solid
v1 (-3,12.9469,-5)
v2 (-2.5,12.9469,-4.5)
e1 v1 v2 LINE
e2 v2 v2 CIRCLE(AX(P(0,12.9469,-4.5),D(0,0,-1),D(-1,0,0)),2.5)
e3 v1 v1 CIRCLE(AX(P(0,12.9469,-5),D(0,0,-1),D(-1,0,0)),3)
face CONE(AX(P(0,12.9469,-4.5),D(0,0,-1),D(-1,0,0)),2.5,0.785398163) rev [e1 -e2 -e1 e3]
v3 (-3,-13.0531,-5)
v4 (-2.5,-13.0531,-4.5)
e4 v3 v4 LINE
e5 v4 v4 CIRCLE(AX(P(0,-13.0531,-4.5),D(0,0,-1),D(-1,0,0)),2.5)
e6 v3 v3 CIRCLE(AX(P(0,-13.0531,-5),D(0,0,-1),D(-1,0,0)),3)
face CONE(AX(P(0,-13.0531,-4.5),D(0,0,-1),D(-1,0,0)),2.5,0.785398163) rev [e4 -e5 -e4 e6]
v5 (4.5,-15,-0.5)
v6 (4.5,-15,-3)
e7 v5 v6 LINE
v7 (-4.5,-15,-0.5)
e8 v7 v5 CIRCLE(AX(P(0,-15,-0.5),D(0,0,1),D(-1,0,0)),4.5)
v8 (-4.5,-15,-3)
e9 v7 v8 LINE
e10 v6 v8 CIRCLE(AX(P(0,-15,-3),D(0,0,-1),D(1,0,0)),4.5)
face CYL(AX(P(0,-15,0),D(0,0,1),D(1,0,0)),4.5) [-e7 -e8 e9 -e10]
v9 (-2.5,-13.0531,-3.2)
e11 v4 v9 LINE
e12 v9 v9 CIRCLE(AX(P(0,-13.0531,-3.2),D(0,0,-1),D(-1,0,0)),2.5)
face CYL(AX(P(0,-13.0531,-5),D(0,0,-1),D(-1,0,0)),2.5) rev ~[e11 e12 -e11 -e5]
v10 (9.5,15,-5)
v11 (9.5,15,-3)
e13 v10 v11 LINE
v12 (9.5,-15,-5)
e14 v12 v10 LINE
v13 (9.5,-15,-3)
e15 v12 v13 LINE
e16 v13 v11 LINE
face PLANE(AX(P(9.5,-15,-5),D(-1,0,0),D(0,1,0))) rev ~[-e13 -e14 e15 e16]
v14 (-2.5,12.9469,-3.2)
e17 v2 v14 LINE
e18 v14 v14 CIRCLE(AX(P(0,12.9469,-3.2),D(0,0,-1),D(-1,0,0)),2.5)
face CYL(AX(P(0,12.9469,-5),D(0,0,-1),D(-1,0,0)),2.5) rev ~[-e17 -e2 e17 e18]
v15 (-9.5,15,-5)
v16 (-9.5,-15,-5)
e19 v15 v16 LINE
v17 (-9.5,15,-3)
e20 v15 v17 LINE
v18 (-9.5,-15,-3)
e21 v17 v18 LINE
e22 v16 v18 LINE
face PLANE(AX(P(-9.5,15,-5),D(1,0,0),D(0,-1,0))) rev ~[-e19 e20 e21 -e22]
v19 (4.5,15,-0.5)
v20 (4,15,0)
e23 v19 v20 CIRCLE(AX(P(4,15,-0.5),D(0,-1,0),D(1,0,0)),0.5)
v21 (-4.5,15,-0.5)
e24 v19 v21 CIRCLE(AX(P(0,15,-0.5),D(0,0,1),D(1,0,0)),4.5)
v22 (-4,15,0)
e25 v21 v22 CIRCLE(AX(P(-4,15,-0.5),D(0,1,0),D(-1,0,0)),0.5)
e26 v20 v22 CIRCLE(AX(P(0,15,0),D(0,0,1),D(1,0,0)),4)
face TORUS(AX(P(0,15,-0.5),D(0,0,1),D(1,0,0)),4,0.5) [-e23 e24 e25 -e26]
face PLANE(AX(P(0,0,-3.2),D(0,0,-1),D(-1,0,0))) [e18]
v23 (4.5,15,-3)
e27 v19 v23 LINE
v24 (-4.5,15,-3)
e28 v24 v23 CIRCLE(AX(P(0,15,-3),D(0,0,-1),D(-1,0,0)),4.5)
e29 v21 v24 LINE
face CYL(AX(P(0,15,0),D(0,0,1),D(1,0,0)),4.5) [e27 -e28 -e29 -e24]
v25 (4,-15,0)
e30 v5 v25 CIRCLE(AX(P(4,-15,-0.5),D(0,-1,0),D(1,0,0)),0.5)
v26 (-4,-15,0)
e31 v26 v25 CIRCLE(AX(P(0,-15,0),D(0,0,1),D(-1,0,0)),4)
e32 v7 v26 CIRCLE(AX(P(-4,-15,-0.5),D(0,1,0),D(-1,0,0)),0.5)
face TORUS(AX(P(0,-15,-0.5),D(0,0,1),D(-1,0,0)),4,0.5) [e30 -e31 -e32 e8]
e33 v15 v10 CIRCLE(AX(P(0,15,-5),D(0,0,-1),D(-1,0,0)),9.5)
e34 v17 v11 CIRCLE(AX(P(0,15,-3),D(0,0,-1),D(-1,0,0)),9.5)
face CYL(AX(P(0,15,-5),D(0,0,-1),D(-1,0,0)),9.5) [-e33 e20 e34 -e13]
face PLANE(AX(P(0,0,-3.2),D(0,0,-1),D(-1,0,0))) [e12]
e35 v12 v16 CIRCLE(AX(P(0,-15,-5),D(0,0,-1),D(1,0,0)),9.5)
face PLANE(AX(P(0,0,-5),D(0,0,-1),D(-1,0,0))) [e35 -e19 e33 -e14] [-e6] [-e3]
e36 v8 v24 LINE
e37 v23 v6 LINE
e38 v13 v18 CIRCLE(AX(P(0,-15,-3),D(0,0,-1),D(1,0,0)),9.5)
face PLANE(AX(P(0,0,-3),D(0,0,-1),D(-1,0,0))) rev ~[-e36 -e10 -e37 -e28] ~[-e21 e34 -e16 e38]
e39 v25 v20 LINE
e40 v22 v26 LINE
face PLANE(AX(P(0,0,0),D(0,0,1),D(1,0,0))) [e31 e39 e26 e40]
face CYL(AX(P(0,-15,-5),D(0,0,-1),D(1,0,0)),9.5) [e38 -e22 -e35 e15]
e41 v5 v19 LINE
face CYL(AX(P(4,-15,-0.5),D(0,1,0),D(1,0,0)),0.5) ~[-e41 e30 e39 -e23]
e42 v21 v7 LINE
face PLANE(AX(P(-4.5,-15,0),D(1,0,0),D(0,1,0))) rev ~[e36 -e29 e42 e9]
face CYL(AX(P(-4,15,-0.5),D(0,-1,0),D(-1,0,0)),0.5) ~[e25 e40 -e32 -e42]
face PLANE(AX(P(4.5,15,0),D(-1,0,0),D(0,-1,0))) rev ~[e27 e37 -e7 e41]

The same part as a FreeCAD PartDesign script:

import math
import FreeCAD as App
import Part
import Sketcher


def edges_at(feature, points):
    """Names of the edges that pass closest to the given points."""
    edges = feature.Shape.Edges
    near = lambda p: min(range(len(edges)), key=lambda i: edges[i].distToShape(Part.Vertex(*p))[0])
    return sorted({f"Edge{near(p) + 1}" for p in points})

doc = App.newDocument("Part")
body = doc.addObject("PartDesign::Body", "Body")

# Sketch on XY plane
sketch1 = doc.addObject("Sketcher::SketchObject", "Sketch")
body.addObject(sketch1)
sketch1.AttachmentSupport = (doc.XY_Plane, [""])
sketch1.MapMode = "FlatFace"
sketch1.addGeometry([
    Part.ArcOfCircle(Part.Circle(App.Vector(0, 15, 0), App.Vector(0, 0, 1), 4.5), math.radians(0), math.radians(180)),
    Part.LineSegment(App.Vector(-4.5, 15, 0), App.Vector(-4.5, -15, 0)),
    Part.ArcOfCircle(Part.Circle(App.Vector(0, -15, 0), App.Vector(0, 0, 1), 4.5), math.radians(180), math.radians(360)),
    Part.LineSegment(App.Vector(4.5, -15, 0), App.Vector(4.5, 15, 0)),
], False)
sketch1.addConstraint([
    Sketcher.Constraint("Tangent", 0, 2, 1, 1),
    Sketcher.Constraint("Tangent", 1, 2, 2, 1),
    Sketcher.Constraint("Tangent", 2, 2, 3, 1),
    Sketcher.Constraint("Tangent", 3, 2, 0, 1),
    Sketcher.Constraint("Vertical", 1),
    Sketcher.Constraint("Vertical", 3),
    Sketcher.Constraint("Symmetric", 0, 3, 2, 3, -1, 1),
    Sketcher.Constraint("Radius", 0, 4.5),
    Sketcher.Constraint("DistanceY", 1, 2, 1, 1, 30.0),
])
pad1 = doc.addObject("PartDesign::Pad", "Pad")
body.addObject(pad1)
pad1.Profile = sketch1
pad1.Length = 5
pad1.Reversed = True

# Sketch on XY plane
sketch2 = doc.addObject("Sketcher::SketchObject", "Sketch001")
body.addObject(sketch2)
sketch2.AttachmentSupport = (doc.XY_Plane, [""])
sketch2.MapMode = "FlatFace"
sketch2.AttachmentOffset = App.Placement(App.Vector(0, 0, -5), App.Rotation())
sketch2.addGeometry([
    Part.LineSegment(App.Vector(9.5, 15, 0), App.Vector(9.5, -15, 0)),  # 0
    Part.ArcOfCircle(Part.Circle(App.Vector(0, -15, 0), App.Vector(0, 0, 1), 9.5), math.radians(180), math.radians(360)),  # 1
    Part.LineSegment(App.Vector(-9.5, -15, 0), App.Vector(-9.5, 15, 0)),  # 2
    Part.ArcOfCircle(Part.Circle(App.Vector(0, 15, 0), App.Vector(0, 0, 1), 9.5), math.radians(0), math.radians(180)),  # 3
    Part.LineSegment(App.Vector(-4.5, 15, 0), App.Vector(-4.5, -15, 0)),  # 4
    Part.ArcOfCircle(Part.Circle(App.Vector(0, -15, 0), App.Vector(0, 0, 1), 4.5), math.radians(180), math.radians(360)),  # 5
    Part.LineSegment(App.Vector(4.5, -15, 0), App.Vector(4.5, 15, 0)),  # 6
    Part.ArcOfCircle(Part.Circle(App.Vector(0, 15, 0), App.Vector(0, 0, 1), 4.5), math.radians(0), math.radians(180)),  # 7
], False)
sketch2.addConstraint([
    Sketcher.Constraint("Tangent", 0, 2, 1, 2),
    Sketcher.Constraint("Tangent", 1, 1, 2, 1),
    Sketcher.Constraint("Tangent", 2, 2, 3, 2),
    Sketcher.Constraint("Tangent", 3, 1, 0, 1),
    Sketcher.Constraint("Tangent", 4, 2, 5, 1),
    Sketcher.Constraint("Tangent", 5, 2, 6, 1),
    Sketcher.Constraint("Tangent", 6, 2, 7, 1),
    Sketcher.Constraint("Tangent", 7, 2, 4, 1),
    Sketcher.Constraint("Vertical", 0),
    Sketcher.Constraint("Vertical", 2),
    Sketcher.Constraint("Vertical", 4),
    Sketcher.Constraint("Vertical", 6),
    Sketcher.Constraint("Coincident", 5, 3, 1, 3),
    Sketcher.Constraint("Symmetric", 1, 3, 3, 3, -1, 1),
    Sketcher.Constraint("Horizontal", 7, 3, 2, 2),
    Sketcher.Constraint("DistanceX", 1, 1, 4, 2, 5.0),
    Sketcher.Constraint("Radius", 1, 9.5),
    Sketcher.Constraint("DistanceY", 0, 2, 0, 1, 30.0),
])
pad2 = doc.addObject("PartDesign::Pad", "Pad001")
body.addObject(pad2)
pad2.Profile = sketch2
pad2.Length = 2

# Sketch on XY plane
sketch3 = doc.addObject("Sketcher::SketchObject", "Sketch002")
body.addObject(sketch3)
sketch3.AttachmentSupport = (doc.XY_Plane, [""])
sketch3.MapMode = "FlatFace"
sketch3.AttachmentOffset = App.Placement(App.Vector(0, 0, -5), App.Rotation())
sketch3.addGeometry([
    Part.Circle(App.Vector(0, 12.9469, 0), App.Vector(0, 0, 1), 2.5),
    Part.Circle(App.Vector(0, -13.0531, 0), App.Vector(0, 0, 1), 2.5),
], False)
sketch3.addConstraint([
    Sketcher.Constraint("Equal", 0, 1),
    Sketcher.Constraint("PointOnObject", 0, 3, -2),
    Sketcher.Constraint("PointOnObject", 1, 3, -2),
    Sketcher.Constraint("Diameter", 0, 5.0),
    Sketcher.Constraint("DistanceY", 1, 3, 0, 3, 26.0),
    Sketcher.Constraint("DistanceY", -1, 1, 0, 3, 12.947),
])
pocket1 = doc.addObject("PartDesign::Pocket", "Pocket")
body.addObject(pocket1)
pocket1.Profile = sketch3
pocket1.Length = 1.8
pocket1.Reversed = True
doc.recompute()

chamfer = doc.addObject("PartDesign::Chamfer", "Chamfer")
body.addObject(chamfer)
chamfer.Base = (pocket1, edges_at(pocket1, [(2.5, 12.947, -5), (2.5, -13.053, -5)]))
chamfer.Size = 0.5
doc.recompute()

fillet = doc.addObject("PartDesign::Fillet", "Fillet")
body.addObject(fillet)
fillet.Base = (chamfer, edges_at(chamfer, [
    (0, 19.5, 0),
    (-4.5, 0, 0),
    (0, -19.5, 0),
    (4.5, 0, 0),
]))
fillet.Radius = 0.5

doc.recompute()
